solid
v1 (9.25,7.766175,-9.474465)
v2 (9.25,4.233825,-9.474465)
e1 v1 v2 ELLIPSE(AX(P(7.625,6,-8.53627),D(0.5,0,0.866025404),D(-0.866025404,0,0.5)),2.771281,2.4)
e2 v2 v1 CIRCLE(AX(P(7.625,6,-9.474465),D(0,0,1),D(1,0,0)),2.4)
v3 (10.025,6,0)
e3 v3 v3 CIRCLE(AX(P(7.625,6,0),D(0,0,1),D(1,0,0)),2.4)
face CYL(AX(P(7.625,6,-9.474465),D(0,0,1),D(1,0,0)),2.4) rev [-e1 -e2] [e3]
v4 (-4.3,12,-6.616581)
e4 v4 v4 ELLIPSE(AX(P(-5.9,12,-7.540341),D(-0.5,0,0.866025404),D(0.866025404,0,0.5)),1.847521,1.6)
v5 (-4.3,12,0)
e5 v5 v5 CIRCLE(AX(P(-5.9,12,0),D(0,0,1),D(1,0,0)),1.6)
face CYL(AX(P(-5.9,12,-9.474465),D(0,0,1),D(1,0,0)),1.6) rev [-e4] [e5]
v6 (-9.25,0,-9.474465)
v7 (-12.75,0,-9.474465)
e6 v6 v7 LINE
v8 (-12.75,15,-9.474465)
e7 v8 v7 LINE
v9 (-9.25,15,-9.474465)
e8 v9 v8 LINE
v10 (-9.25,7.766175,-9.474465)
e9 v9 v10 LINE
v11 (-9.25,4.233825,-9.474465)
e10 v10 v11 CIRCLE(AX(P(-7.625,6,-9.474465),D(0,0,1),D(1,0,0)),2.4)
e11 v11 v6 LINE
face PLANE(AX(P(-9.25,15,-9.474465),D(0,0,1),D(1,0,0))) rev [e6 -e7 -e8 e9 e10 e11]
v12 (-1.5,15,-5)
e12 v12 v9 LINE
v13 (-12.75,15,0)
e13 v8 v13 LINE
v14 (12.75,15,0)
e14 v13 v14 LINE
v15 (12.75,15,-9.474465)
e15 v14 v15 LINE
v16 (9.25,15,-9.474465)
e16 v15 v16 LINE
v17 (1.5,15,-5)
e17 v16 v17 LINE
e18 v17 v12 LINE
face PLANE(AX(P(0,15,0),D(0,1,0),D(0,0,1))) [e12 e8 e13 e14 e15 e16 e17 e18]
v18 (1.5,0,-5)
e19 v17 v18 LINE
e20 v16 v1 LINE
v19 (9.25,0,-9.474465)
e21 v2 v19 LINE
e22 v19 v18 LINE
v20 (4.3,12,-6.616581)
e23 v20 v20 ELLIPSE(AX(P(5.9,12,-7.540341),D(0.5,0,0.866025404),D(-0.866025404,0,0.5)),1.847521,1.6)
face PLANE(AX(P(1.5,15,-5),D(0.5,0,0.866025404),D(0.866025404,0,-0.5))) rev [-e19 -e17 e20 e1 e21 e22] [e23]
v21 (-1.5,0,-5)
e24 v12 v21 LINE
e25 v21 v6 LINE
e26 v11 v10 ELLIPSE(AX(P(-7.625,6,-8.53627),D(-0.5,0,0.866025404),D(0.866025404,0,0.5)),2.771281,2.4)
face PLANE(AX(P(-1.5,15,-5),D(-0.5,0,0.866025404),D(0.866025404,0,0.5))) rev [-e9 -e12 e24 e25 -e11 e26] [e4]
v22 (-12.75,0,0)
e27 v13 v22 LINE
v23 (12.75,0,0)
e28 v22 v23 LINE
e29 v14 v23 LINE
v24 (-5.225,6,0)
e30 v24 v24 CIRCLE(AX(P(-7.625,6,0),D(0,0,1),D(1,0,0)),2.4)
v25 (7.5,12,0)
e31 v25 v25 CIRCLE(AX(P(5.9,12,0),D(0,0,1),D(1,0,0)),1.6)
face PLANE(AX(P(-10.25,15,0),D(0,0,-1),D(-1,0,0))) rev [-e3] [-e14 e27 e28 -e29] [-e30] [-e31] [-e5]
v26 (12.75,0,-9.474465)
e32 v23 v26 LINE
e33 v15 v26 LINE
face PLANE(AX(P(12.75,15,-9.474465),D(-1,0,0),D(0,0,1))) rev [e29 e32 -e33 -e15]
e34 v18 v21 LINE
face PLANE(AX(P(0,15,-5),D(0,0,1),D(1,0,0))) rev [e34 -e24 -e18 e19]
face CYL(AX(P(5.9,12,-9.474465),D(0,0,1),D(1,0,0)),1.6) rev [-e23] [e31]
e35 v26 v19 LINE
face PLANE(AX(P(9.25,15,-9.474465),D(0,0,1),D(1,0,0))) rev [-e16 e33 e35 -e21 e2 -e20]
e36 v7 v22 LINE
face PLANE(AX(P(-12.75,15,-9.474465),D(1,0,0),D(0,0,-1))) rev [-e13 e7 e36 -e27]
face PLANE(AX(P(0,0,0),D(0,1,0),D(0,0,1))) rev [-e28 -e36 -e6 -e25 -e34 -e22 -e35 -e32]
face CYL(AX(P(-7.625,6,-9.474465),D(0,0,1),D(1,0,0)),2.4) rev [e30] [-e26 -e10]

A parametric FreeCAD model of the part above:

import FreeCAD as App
import Part
import Sketcher
from FreeCAD import Vector
Q = App.Units.Quantity

doc = App.newDocument("Part")
body = doc.addObject("PartDesign::Body", "Body")

# Sketch on XZ plane
sketch1 = body.newObject("Sketcher::SketchObject", "Sketch")
sketch1.AttachmentSupport = (doc.getObject("XZ_Plane"), [""])
sketch1.MapMode = "FlatFace"
sketch1.addGeometry([
    Part.LineSegment(Vector(12.8, 0, 0), Vector(12.8, -9.5, 0)),  # 0
    Part.LineSegment(Vector(12.8, -9.5, 0), Vector(9.2, -9.5, 0)),  # 1
    Part.LineSegment(Vector(9.2, -9.5, 0), Vector(1.5, -5, 0)),  # 2
    Part.LineSegment(Vector(1.5, -5, 0), Vector(-1.5, -5, 0)),  # 3
    Part.LineSegment(Vector(-1.5, -5, 0), Vector(-9.2, -9.5, 0)),  # 4
    Part.LineSegment(Vector(-9.2, -9.5, 0), Vector(-12.8, -9.5, 0)),  # 5
    Part.LineSegment(Vector(-12.8, -9.5, 0), Vector(-12.8, 0, 0)),  # 6
    Part.LineSegment(Vector(-12.8, 0, 0), Vector(12.8, 0, 0)),  # 7
], False)
sketch1.addConstraint([
    Sketcher.Constraint("Coincident", 0, 2, 1, 1),
    Sketcher.Constraint("Coincident", 1, 2, 2, 1),
    Sketcher.Constraint("Coincident", 2, 2, 3, 1),
    Sketcher.Constraint("Coincident", 3, 2, 4, 1),
    Sketcher.Constraint("Coincident", 4, 2, 5, 1),
    Sketcher.Constraint("Coincident", 5, 2, 6, 1),
    Sketcher.Constraint("Coincident", 6, 2, 7, 1),
    Sketcher.Constraint("Coincident", 7, 2, 0, 1),
    Sketcher.Constraint("Vertical", 0),
    Sketcher.Constraint("Horizontal", 1),
    Sketcher.Constraint("Horizontal", 3),
    Sketcher.Constraint("Horizontal", 5),
    Sketcher.Constraint("Vertical", 6),
    Sketcher.Constraint("Horizontal", 7),
    Sketcher.Constraint("Symmetric", 6, 2, 7, 2, -1, 1),
    Sketcher.Constraint("Symmetric", 1, 2, 4, 2, -2),
    Sketcher.Constraint("Equal", 2, 4),
    Sketcher.Constraint("DistanceX", 3, 2, 3, 1, Q("3 mm")),
    Sketcher.Constraint("Angle", 2, Q("150 deg")),
    Sketcher.Constraint("DistanceX", 1, 2, 1, 1, Q("3.5 mm")),
    Sketcher.Constraint("DistanceX", 7, 1, 7, 2, Q("25.5 mm")),
    Sketcher.Constraint("DistanceY", 2, 2, -1, 1, Q("5 mm")),
])
pad1 = body.newObject("PartDesign::Pad", "Pad")
pad1.Profile = sketch1
pad1.Length = 15
pad1.Reversed = True

# Sketch on XY plane
sketch2 = body.newObject("Sketcher::SketchObject", "Sketch001")
sketch2.AttachmentSupport = (doc.getObject("XY_Plane"), [""])
sketch2.MapMode = "FlatFace"
sketch2.addGeometry([
    Part.Circle(Vector(-5.9, 12, 0), Vector(0, 0, 1), 1.6),
    Part.Circle(Vector(5.9, 12, 0), Vector(0, 0, 1), 1.6),
    Part.Circle(Vector(-7.6, 6, 0), Vector(0, 0, 1), 2.4),
    Part.Circle(Vector(7.6, 6, 0), Vector(0, 0, 1), 2.4),
], False)
sketch2.addConstraint([
    Sketcher.Constraint("Equal", 0, 1),
    Sketcher.Constraint("Equal", 2, 3),
    Sketcher.Constraint("Symmetric", 0, 3, 1, 3, -2),
    Sketcher.Constraint("Symmetric", 2, 3, 3, 3, -2),
    Sketcher.Constraint("Diameter", 0, Q("3.2 mm")),
    Sketcher.Constraint("Diameter", 2, Q("4.8 mm")),
    Sketcher.Constraint("DistanceY", -1, 1, 0, 3, Q("12 mm")),
    Sketcher.Constraint("DistanceY", -1, 1, 2, 3, Q("6 mm")),
    Sketcher.Constraint("DistanceX", 0, 3, -1, 1, Q("5.9 mm")),
    Sketcher.Constraint("DistanceX", 2, 3, 3, 3, Q("15.25 mm")),
])
pocket1 = body.newObject("PartDesign::Pocket", "Pocket")
pocket1.Profile = sketch2
pocket1.Type = "ThroughAll"

doc.recompute()
